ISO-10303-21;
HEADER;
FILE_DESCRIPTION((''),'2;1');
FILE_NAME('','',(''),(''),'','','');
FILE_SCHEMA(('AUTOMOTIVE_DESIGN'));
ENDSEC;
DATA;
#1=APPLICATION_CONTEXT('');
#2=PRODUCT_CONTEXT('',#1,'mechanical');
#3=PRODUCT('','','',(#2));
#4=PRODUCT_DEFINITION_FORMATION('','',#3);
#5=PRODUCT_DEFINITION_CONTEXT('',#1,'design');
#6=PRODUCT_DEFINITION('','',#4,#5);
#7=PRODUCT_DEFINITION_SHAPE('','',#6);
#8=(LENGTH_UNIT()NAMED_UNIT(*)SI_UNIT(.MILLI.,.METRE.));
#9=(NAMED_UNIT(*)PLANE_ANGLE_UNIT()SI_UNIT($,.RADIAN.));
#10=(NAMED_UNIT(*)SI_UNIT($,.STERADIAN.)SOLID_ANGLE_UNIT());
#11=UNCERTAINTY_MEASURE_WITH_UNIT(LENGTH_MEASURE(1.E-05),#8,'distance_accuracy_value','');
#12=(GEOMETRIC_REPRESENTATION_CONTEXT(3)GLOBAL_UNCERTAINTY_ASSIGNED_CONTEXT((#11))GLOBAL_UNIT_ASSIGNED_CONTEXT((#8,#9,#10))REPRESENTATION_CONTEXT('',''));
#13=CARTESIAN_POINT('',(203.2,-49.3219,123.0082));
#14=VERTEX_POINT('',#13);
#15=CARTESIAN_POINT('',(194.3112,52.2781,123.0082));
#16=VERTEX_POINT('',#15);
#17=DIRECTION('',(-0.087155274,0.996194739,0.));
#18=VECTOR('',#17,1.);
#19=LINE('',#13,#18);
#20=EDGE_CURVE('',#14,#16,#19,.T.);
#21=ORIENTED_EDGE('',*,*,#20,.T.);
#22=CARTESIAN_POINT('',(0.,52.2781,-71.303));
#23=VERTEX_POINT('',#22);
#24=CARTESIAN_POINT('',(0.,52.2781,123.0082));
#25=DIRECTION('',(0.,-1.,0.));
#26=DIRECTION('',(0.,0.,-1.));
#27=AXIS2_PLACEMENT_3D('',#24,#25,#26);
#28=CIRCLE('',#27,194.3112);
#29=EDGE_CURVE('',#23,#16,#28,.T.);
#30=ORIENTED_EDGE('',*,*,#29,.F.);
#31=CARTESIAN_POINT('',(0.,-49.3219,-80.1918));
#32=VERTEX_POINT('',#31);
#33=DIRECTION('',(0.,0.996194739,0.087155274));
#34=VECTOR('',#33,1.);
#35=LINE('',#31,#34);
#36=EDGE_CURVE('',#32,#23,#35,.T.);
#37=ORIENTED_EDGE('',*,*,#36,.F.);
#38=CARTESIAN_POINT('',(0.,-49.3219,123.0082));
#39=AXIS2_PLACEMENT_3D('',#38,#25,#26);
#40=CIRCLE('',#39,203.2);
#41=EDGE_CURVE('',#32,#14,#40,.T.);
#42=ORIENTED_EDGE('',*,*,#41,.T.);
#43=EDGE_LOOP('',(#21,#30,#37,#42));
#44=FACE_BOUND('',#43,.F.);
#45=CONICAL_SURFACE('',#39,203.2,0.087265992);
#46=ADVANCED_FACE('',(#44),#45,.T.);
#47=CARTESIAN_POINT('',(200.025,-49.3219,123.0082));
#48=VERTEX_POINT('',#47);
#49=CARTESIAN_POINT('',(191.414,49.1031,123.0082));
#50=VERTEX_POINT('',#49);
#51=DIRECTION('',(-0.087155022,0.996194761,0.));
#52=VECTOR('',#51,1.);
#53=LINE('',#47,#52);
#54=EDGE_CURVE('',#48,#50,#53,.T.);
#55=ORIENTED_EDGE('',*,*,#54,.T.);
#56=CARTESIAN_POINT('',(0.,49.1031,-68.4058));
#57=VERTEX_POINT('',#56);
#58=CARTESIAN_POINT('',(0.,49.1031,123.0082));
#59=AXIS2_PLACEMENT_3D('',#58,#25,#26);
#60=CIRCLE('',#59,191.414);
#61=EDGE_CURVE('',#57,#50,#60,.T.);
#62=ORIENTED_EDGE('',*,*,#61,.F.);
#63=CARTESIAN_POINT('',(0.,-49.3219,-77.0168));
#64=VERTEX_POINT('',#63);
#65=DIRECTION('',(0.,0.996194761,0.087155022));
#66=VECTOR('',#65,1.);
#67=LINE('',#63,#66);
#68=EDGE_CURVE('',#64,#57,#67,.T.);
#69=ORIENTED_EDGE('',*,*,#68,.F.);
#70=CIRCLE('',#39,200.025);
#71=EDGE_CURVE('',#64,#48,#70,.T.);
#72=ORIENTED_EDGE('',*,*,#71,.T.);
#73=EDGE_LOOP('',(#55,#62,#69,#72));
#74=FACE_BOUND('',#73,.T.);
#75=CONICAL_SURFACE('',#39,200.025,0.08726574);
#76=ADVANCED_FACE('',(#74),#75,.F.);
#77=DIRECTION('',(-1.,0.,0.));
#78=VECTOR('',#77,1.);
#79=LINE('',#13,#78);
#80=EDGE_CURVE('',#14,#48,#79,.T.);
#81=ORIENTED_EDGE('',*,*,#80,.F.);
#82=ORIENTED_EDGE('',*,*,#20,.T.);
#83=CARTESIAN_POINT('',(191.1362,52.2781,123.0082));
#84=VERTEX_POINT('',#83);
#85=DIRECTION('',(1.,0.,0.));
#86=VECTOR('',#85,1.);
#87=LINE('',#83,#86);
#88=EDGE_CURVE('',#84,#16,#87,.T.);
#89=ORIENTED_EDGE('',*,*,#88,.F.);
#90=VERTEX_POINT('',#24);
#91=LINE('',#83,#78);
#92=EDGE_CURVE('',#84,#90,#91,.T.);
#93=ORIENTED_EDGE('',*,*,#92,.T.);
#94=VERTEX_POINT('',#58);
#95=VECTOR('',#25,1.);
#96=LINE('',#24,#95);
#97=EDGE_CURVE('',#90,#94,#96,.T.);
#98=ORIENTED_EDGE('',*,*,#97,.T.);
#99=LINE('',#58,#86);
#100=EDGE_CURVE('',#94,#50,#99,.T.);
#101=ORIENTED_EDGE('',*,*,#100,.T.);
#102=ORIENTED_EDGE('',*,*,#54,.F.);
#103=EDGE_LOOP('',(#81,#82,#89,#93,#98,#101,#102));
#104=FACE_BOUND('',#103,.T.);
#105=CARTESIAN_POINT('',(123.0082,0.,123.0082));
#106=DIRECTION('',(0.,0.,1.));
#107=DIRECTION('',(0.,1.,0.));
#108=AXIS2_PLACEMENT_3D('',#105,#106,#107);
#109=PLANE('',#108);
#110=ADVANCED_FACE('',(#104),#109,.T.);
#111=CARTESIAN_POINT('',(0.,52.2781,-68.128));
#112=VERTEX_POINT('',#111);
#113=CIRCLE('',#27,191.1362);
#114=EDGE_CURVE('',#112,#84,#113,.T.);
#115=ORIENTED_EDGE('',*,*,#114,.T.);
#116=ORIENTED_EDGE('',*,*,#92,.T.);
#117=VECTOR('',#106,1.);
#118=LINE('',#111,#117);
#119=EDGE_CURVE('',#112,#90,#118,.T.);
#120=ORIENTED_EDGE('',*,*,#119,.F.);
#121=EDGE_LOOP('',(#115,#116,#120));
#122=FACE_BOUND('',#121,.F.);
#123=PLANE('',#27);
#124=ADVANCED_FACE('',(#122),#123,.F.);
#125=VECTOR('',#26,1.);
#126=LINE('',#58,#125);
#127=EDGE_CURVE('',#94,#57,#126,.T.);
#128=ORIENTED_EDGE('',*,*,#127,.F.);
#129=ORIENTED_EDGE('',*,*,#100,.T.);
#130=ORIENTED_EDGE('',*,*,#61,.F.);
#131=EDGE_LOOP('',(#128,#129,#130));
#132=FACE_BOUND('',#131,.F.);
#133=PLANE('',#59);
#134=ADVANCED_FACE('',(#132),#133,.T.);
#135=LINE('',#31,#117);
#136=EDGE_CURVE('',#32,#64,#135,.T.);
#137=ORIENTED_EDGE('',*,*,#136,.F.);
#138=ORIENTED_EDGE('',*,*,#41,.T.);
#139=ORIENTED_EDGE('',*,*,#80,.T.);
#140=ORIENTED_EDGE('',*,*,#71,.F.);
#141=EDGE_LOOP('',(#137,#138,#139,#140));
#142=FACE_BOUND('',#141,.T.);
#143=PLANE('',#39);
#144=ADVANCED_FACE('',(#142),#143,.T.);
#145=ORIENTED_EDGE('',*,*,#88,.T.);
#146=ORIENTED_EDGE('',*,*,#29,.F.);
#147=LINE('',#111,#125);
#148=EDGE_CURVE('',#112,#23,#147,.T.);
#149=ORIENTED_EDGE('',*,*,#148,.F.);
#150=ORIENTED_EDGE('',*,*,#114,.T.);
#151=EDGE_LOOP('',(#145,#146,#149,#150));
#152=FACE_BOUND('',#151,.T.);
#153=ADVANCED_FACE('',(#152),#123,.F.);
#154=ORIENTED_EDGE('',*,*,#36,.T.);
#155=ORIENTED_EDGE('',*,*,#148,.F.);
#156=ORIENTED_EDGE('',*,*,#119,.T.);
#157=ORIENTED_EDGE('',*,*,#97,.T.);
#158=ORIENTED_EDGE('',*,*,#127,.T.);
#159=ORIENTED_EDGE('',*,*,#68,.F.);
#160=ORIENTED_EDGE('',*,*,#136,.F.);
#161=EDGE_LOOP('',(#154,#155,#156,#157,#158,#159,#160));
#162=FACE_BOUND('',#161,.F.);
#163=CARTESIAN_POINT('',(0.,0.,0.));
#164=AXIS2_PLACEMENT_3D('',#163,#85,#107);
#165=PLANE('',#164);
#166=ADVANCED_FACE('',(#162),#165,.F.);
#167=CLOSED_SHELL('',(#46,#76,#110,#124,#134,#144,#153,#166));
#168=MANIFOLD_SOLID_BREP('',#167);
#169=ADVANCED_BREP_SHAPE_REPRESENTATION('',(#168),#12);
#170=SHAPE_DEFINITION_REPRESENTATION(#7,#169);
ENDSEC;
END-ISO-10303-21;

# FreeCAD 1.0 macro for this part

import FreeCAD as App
import Part
import Sketcher

V = App.Vector
Q = App.Units.Quantity


def add_polygon(sketch, points):
    """Adds a closed chain of lines whose ends are joined by coincident constraints."""
    first, n = sketch.GeometryCount, len(points)
    for a, b in zip(points, points[1:] + points[:1]):
        sketch.addGeometry(Part.LineSegment(App.Vector(*a, 0), App.Vector(*b, 0)), False)
    for i in range(n):
        sketch.addConstraint(Sketcher.Constraint("Coincident", first + i, 2, first + (i + 1) % n, 1))

doc = App.newDocument("Part")
params = doc.addObject("Spreadsheet::Sheet", "Params")
for row, (alias, value) in enumerate([
    ("sketch1_width", "4 in"),
    ("sketch1_width2", "0.125 in"),
    ("revolution_angle", "90 deg"),
], start=1):
    params.set(f"A{row}", alias)
    params.set(f"B{row}", "=" + value)
    params.setAlias(f"B{row}", alias)

body = doc.addObject("PartDesign::Body", "Body")

# Sketch on YZ plane
sketch1 = body.newObject("Sketcher::SketchObject", "Sketch")
sketch1.AttachmentSupport = (doc.getObject("YZ_Plane"), [""])
sketch1.MapMode = "FlatFace"
add_polygon(sketch1, [(52.2781, -71.303), (52.2781, 123.0082), (49.1031, 123.0082), (49.1031, -68.4058), (-49.3219, -77.0168), (-49.3219, -80.1918)])  # lines 0-5
sketch1.addGeometry(Part.LineSegment(V(52.2781, 123.0082, 0), V(-49.3219, 123.0082, 0)), True)  # axis
sketch1.addConstraint([
    Sketcher.Constraint("Vertical", 0),
    Sketcher.Constraint("Horizontal", 1),
    Sketcher.Constraint("Vertical", 2),
    Sketcher.Constraint("Vertical", 4),
    Sketcher.Constraint("Horizontal", 6),
    Sketcher.Constraint("Coincident", 6, 1, 0, 2),
    Sketcher.Constraint("Parallel", 3, 5),
    Sketcher.Constraint("Vertical", 4, 2, 6, 2),
    Sketcher.Constraint("Equal", 1, 4),
    Sketcher.Constraint("DistanceX", 6, 2, 6, 1, Q("4 in")),
    Sketcher.Constraint("DistanceY", 4, 2, 1, 2, Q("8 in")),
    Sketcher.Constraint("DistanceX", 1, 2, 1, 1, Q("0.125 in")),
    Sketcher.Constraint("Angle", 3, Q("-175 deg")),
    Sketcher.Constraint("DistanceX", -1, 1, 0, 2, Q("2.0582 in")),
    Sketcher.Constraint("DistanceY", 5, 2, -1, 1, Q("2.8072 in")),
])
sketch1.setExpression("Constraints[15]", "Params.sketch1_width")
sketch1.setExpression("Constraints[17]", "Params.sketch1_width2")
revolution = body.newObject("PartDesign::Revolution", "Revolution")
revolution.Profile = sketch1
revolution.ReferenceAxis = (sketch1, ["Axis0"])
revolution.setExpression("Angle", "Params.revolution_angle")

doc.recompute()
